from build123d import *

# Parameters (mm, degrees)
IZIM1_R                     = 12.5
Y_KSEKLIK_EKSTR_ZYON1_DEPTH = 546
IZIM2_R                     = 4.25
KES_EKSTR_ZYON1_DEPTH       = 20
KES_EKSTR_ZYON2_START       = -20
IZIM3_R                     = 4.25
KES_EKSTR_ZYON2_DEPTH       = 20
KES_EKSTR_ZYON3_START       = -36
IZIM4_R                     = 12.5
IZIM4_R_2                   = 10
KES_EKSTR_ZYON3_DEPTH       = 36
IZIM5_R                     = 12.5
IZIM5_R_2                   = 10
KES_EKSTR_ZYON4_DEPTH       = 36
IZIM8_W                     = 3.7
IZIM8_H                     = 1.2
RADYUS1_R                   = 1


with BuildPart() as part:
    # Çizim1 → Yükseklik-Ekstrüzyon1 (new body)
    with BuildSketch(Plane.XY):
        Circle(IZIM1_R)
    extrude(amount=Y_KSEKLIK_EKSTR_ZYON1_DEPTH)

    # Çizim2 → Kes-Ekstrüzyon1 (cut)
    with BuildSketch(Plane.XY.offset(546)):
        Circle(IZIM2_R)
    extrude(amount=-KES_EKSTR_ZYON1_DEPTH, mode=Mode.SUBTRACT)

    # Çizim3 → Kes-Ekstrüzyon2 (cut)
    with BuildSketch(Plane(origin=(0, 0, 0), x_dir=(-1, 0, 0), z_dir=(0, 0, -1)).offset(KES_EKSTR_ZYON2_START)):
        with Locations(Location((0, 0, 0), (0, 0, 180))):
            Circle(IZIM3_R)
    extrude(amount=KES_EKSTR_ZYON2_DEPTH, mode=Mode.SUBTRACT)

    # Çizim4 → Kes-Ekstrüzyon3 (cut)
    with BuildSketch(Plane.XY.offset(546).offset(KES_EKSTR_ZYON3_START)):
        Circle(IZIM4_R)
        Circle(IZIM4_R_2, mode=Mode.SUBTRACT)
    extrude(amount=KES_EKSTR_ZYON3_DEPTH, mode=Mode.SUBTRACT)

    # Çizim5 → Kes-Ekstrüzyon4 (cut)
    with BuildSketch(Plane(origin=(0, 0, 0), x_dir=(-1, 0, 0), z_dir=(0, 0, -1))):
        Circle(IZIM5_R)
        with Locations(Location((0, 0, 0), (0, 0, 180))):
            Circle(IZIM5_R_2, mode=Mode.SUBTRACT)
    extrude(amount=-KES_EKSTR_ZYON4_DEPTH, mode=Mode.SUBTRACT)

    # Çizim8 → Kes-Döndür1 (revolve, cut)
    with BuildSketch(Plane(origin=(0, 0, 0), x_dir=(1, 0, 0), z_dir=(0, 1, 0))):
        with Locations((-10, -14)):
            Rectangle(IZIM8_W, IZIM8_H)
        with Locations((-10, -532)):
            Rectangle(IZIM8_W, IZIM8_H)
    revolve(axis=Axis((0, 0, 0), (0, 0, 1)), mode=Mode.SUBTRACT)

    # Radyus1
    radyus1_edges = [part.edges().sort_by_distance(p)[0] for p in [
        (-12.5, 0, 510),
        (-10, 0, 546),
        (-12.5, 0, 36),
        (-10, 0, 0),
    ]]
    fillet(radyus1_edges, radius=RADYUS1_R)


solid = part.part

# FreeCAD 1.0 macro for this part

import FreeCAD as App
import Part
import Sketcher

V = App.Vector
Q = App.Units.Quantity


def edges_at(feature, points):
    """Names of the edges that pass closest to the given points."""
    edges = feature.Shape.Edges
    near = lambda p: min(range(len(edges)), key=lambda i: edges[i].distToShape(Part.Vertex(*p))[0])
    return sorted({f"Edge{near(p) + 1}" for p in points})


def add_polygon(sketch, points):
    """Adds a closed chain of lines whose ends are joined by coincident constraints."""
    first, n = sketch.GeometryCount, len(points)
    for a, b in zip(points, points[1:] + points[:1]):
        sketch.addGeometry(Part.LineSegment(App.Vector(*a, 0), App.Vector(*b, 0)), False)
    for i in range(n):
        sketch.addConstraint(Sketcher.Constraint("Coincident", first + i, 2, first + (i + 1) % n, 1))

doc = App.newDocument("Part")
body = doc.addObject("PartDesign::Body", "Body")

# Sketch on XY plane
sketch1 = body.newObject("Sketcher::SketchObject", "Sketch")
sketch1.AttachmentSupport = (doc.getObject("XY_Plane"), [""])
sketch1.MapMode = "FlatFace"
sketch1.addGeometry(Part.Circle(V(0, 0, 0), V(0, 0, 1), 12.5), False)
sketch1.addConstraint([
    Sketcher.Constraint("Coincident", 0, 3, -1, 1),
    Sketcher.Constraint("Diameter", 0, Q("25 mm")),
])
pad1 = body.newObject("PartDesign::Pad", "Pad")
pad1.Profile = sketch1
pad1.Length = 546

# Sketch on XY plane
sketch2 = body.newObject("Sketcher::SketchObject", "Sketch001")
sketch2.AttachmentSupport = (doc.getObject("XY_Plane"), [""])
sketch2.MapMode = "FlatFace"
sketch2.AttachmentOffset = App.Placement(V(0, 0, 546), App.Rotation())
sketch2.addGeometry(Part.Circle(V(0, 0, 0), V(0, 0, 1), 4.25), False)
sketch2.addConstraint([
    Sketcher.Constraint("Coincident", 0, 3, -1, 1),
    Sketcher.Constraint("Diameter", 0, Q("8.5 mm")),
])
pocket1 = body.newObject("PartDesign::Pocket", "Pocket")
pocket1.Profile = sketch2
pocket1.Length = 20

# Sketch on XY plane
sketch3 = body.newObject("Sketcher::SketchObject", "Sketch002")
sketch3.AttachmentSupport = (doc.getObject("XY_Plane"), [""])
sketch3.MapMode = "FlatFace"
sketch3.AttachmentOffset = App.Placement(V(0, 0, 20), App.Rotation())
sketch3.addGeometry(Part.Circle(V(0, 0, 0), V(0, 0, 1), 4.25), False)
sketch3.addConstraint([
    Sketcher.Constraint("Coincident", 0, 3, -1, 1),
    Sketcher.Constraint("Diameter", 0, Q("8.5 mm")),
])
pocket2 = body.newObject("PartDesign::Pocket", "Pocket001")
pocket2.Profile = sketch3
pocket2.Length = 20

# Sketch on XY plane
sketch4 = body.newObject("Sketcher::SketchObject", "Sketch003")
sketch4.AttachmentSupport = (doc.getObject("XY_Plane"), [""])
sketch4.MapMode = "FlatFace"
sketch4.AttachmentOffset = App.Placement(V(0, 0, 510), App.Rotation())
sketch4.addGeometry([
    Part.Circle(V(0, 0, 0), V(0, 0, 1), 12.5),
    Part.Circle(V(0, 0, 0), V(0, 0, 1), 10),
], False)
sketch4.addConstraint([
    Sketcher.Constraint("Coincident", 0, 3, -1, 1),
    Sketcher.Constraint("Coincident", 1, 3, -1, 1),
    Sketcher.Constraint("Diameter", 0, Q("25 mm")),
    Sketcher.Constraint("Diameter", 1, Q("20 mm")),
])
pocket3 = body.newObject("PartDesign::Pocket", "Pocket002")
pocket3.Profile = sketch4
pocket3.Length = 36
pocket3.Reversed = True

# Sketch on XY plane
sketch5 = body.newObject("Sketcher::SketchObject", "Sketch004")
sketch5.AttachmentSupport = (doc.getObject("XY_Plane"), [""])
sketch5.MapMode = "FlatFace"
sketch5.addGeometry([
    Part.Circle(V(0, 0, 0), V(0, 0, 1), 12.5),
    Part.Circle(V(0, 0, 0), V(0, 0, 1), 10),
], False)
sketch5.addConstraint([
    Sketcher.Constraint("Coincident", 0, 3, -1, 1),
    Sketcher.Constraint("Coincident", 1, 3, -1, 1),
    Sketcher.Constraint("Diameter", 0, Q("25 mm")),
    Sketcher.Constraint("Diameter", 1, Q("20 mm")),
])
pocket4 = body.newObject("PartDesign::Pocket", "Pocket003")
pocket4.Profile = sketch5
pocket4.Length = 36
pocket4.Reversed = True

# Sketch on XZ plane
sketch6 = body.newObject("Sketcher::SketchObject", "Sketch005")
sketch6.AttachmentSupport = (doc.getObject("XZ_Plane"), [""])
sketch6.MapMode = "FlatFace"
add_polygon(sketch6, [(-11.85, 13.4), (-11.85, 14.6), (-8.15, 14.6), (-8.15, 13.4)])  # lines 0-3
add_polygon(sketch6, [(-11.85, 531.4), (-11.85, 532.6), (-8.15, 532.6), (-8.15, 531.4)])  # lines 4-7
sketch6.addConstraint([
    Sketcher.Constraint("Vertical", 0),
    Sketcher.Constraint("Horizontal", 1),
    Sketcher.Constraint("Vertical", 2),
    Sketcher.Constraint("Horizontal", 3),
    Sketcher.Constraint("Vertical", 4),
    Sketcher.Constraint("Horizontal", 5),
    Sketcher.Constraint("Vertical", 6),
    Sketcher.Constraint("Horizontal", 7),
    Sketcher.Constraint("Vertical", 3, 2, 4, 2),
    Sketcher.Constraint("Vertical", 2, 2, 5, 2),
    Sketcher.Constraint("Equal", 2, 4),
    Sketcher.Constraint("DistanceX", 1, 1, 1, 2, Q("3.7 mm")),
    Sketcher.Constraint("DistanceY", 0, 1, 0, 2, Q("1.2 mm")),
    Sketcher.Constraint("DistanceY", 0, 2, 4, 2, Q("518 mm")),
    Sketcher.Constraint("DistanceY", -1, 1, 0, 2, Q("14.6 mm")),
    Sketcher.Constraint("DistanceX", 0, 2, -1, 1, Q("11.85 mm")),
])
groove = body.newObject("PartDesign::Groove", "Groove")
groove.Profile = sketch6
groove.ReferenceAxis = (sketch6, ["V_Axis"])
groove.Angle = 360
doc.recompute()

fillet = body.newObject("PartDesign::Fillet", "Fillet")
fillet.Base = (groove, edges_at(groove, [
    (-12.5, 0, 510),
    (-10, 0, 546),
    (-12.5, 0, 36),
    (-10, 0, 0),
]))
fillet.Radius = 1

doc.recompute()
